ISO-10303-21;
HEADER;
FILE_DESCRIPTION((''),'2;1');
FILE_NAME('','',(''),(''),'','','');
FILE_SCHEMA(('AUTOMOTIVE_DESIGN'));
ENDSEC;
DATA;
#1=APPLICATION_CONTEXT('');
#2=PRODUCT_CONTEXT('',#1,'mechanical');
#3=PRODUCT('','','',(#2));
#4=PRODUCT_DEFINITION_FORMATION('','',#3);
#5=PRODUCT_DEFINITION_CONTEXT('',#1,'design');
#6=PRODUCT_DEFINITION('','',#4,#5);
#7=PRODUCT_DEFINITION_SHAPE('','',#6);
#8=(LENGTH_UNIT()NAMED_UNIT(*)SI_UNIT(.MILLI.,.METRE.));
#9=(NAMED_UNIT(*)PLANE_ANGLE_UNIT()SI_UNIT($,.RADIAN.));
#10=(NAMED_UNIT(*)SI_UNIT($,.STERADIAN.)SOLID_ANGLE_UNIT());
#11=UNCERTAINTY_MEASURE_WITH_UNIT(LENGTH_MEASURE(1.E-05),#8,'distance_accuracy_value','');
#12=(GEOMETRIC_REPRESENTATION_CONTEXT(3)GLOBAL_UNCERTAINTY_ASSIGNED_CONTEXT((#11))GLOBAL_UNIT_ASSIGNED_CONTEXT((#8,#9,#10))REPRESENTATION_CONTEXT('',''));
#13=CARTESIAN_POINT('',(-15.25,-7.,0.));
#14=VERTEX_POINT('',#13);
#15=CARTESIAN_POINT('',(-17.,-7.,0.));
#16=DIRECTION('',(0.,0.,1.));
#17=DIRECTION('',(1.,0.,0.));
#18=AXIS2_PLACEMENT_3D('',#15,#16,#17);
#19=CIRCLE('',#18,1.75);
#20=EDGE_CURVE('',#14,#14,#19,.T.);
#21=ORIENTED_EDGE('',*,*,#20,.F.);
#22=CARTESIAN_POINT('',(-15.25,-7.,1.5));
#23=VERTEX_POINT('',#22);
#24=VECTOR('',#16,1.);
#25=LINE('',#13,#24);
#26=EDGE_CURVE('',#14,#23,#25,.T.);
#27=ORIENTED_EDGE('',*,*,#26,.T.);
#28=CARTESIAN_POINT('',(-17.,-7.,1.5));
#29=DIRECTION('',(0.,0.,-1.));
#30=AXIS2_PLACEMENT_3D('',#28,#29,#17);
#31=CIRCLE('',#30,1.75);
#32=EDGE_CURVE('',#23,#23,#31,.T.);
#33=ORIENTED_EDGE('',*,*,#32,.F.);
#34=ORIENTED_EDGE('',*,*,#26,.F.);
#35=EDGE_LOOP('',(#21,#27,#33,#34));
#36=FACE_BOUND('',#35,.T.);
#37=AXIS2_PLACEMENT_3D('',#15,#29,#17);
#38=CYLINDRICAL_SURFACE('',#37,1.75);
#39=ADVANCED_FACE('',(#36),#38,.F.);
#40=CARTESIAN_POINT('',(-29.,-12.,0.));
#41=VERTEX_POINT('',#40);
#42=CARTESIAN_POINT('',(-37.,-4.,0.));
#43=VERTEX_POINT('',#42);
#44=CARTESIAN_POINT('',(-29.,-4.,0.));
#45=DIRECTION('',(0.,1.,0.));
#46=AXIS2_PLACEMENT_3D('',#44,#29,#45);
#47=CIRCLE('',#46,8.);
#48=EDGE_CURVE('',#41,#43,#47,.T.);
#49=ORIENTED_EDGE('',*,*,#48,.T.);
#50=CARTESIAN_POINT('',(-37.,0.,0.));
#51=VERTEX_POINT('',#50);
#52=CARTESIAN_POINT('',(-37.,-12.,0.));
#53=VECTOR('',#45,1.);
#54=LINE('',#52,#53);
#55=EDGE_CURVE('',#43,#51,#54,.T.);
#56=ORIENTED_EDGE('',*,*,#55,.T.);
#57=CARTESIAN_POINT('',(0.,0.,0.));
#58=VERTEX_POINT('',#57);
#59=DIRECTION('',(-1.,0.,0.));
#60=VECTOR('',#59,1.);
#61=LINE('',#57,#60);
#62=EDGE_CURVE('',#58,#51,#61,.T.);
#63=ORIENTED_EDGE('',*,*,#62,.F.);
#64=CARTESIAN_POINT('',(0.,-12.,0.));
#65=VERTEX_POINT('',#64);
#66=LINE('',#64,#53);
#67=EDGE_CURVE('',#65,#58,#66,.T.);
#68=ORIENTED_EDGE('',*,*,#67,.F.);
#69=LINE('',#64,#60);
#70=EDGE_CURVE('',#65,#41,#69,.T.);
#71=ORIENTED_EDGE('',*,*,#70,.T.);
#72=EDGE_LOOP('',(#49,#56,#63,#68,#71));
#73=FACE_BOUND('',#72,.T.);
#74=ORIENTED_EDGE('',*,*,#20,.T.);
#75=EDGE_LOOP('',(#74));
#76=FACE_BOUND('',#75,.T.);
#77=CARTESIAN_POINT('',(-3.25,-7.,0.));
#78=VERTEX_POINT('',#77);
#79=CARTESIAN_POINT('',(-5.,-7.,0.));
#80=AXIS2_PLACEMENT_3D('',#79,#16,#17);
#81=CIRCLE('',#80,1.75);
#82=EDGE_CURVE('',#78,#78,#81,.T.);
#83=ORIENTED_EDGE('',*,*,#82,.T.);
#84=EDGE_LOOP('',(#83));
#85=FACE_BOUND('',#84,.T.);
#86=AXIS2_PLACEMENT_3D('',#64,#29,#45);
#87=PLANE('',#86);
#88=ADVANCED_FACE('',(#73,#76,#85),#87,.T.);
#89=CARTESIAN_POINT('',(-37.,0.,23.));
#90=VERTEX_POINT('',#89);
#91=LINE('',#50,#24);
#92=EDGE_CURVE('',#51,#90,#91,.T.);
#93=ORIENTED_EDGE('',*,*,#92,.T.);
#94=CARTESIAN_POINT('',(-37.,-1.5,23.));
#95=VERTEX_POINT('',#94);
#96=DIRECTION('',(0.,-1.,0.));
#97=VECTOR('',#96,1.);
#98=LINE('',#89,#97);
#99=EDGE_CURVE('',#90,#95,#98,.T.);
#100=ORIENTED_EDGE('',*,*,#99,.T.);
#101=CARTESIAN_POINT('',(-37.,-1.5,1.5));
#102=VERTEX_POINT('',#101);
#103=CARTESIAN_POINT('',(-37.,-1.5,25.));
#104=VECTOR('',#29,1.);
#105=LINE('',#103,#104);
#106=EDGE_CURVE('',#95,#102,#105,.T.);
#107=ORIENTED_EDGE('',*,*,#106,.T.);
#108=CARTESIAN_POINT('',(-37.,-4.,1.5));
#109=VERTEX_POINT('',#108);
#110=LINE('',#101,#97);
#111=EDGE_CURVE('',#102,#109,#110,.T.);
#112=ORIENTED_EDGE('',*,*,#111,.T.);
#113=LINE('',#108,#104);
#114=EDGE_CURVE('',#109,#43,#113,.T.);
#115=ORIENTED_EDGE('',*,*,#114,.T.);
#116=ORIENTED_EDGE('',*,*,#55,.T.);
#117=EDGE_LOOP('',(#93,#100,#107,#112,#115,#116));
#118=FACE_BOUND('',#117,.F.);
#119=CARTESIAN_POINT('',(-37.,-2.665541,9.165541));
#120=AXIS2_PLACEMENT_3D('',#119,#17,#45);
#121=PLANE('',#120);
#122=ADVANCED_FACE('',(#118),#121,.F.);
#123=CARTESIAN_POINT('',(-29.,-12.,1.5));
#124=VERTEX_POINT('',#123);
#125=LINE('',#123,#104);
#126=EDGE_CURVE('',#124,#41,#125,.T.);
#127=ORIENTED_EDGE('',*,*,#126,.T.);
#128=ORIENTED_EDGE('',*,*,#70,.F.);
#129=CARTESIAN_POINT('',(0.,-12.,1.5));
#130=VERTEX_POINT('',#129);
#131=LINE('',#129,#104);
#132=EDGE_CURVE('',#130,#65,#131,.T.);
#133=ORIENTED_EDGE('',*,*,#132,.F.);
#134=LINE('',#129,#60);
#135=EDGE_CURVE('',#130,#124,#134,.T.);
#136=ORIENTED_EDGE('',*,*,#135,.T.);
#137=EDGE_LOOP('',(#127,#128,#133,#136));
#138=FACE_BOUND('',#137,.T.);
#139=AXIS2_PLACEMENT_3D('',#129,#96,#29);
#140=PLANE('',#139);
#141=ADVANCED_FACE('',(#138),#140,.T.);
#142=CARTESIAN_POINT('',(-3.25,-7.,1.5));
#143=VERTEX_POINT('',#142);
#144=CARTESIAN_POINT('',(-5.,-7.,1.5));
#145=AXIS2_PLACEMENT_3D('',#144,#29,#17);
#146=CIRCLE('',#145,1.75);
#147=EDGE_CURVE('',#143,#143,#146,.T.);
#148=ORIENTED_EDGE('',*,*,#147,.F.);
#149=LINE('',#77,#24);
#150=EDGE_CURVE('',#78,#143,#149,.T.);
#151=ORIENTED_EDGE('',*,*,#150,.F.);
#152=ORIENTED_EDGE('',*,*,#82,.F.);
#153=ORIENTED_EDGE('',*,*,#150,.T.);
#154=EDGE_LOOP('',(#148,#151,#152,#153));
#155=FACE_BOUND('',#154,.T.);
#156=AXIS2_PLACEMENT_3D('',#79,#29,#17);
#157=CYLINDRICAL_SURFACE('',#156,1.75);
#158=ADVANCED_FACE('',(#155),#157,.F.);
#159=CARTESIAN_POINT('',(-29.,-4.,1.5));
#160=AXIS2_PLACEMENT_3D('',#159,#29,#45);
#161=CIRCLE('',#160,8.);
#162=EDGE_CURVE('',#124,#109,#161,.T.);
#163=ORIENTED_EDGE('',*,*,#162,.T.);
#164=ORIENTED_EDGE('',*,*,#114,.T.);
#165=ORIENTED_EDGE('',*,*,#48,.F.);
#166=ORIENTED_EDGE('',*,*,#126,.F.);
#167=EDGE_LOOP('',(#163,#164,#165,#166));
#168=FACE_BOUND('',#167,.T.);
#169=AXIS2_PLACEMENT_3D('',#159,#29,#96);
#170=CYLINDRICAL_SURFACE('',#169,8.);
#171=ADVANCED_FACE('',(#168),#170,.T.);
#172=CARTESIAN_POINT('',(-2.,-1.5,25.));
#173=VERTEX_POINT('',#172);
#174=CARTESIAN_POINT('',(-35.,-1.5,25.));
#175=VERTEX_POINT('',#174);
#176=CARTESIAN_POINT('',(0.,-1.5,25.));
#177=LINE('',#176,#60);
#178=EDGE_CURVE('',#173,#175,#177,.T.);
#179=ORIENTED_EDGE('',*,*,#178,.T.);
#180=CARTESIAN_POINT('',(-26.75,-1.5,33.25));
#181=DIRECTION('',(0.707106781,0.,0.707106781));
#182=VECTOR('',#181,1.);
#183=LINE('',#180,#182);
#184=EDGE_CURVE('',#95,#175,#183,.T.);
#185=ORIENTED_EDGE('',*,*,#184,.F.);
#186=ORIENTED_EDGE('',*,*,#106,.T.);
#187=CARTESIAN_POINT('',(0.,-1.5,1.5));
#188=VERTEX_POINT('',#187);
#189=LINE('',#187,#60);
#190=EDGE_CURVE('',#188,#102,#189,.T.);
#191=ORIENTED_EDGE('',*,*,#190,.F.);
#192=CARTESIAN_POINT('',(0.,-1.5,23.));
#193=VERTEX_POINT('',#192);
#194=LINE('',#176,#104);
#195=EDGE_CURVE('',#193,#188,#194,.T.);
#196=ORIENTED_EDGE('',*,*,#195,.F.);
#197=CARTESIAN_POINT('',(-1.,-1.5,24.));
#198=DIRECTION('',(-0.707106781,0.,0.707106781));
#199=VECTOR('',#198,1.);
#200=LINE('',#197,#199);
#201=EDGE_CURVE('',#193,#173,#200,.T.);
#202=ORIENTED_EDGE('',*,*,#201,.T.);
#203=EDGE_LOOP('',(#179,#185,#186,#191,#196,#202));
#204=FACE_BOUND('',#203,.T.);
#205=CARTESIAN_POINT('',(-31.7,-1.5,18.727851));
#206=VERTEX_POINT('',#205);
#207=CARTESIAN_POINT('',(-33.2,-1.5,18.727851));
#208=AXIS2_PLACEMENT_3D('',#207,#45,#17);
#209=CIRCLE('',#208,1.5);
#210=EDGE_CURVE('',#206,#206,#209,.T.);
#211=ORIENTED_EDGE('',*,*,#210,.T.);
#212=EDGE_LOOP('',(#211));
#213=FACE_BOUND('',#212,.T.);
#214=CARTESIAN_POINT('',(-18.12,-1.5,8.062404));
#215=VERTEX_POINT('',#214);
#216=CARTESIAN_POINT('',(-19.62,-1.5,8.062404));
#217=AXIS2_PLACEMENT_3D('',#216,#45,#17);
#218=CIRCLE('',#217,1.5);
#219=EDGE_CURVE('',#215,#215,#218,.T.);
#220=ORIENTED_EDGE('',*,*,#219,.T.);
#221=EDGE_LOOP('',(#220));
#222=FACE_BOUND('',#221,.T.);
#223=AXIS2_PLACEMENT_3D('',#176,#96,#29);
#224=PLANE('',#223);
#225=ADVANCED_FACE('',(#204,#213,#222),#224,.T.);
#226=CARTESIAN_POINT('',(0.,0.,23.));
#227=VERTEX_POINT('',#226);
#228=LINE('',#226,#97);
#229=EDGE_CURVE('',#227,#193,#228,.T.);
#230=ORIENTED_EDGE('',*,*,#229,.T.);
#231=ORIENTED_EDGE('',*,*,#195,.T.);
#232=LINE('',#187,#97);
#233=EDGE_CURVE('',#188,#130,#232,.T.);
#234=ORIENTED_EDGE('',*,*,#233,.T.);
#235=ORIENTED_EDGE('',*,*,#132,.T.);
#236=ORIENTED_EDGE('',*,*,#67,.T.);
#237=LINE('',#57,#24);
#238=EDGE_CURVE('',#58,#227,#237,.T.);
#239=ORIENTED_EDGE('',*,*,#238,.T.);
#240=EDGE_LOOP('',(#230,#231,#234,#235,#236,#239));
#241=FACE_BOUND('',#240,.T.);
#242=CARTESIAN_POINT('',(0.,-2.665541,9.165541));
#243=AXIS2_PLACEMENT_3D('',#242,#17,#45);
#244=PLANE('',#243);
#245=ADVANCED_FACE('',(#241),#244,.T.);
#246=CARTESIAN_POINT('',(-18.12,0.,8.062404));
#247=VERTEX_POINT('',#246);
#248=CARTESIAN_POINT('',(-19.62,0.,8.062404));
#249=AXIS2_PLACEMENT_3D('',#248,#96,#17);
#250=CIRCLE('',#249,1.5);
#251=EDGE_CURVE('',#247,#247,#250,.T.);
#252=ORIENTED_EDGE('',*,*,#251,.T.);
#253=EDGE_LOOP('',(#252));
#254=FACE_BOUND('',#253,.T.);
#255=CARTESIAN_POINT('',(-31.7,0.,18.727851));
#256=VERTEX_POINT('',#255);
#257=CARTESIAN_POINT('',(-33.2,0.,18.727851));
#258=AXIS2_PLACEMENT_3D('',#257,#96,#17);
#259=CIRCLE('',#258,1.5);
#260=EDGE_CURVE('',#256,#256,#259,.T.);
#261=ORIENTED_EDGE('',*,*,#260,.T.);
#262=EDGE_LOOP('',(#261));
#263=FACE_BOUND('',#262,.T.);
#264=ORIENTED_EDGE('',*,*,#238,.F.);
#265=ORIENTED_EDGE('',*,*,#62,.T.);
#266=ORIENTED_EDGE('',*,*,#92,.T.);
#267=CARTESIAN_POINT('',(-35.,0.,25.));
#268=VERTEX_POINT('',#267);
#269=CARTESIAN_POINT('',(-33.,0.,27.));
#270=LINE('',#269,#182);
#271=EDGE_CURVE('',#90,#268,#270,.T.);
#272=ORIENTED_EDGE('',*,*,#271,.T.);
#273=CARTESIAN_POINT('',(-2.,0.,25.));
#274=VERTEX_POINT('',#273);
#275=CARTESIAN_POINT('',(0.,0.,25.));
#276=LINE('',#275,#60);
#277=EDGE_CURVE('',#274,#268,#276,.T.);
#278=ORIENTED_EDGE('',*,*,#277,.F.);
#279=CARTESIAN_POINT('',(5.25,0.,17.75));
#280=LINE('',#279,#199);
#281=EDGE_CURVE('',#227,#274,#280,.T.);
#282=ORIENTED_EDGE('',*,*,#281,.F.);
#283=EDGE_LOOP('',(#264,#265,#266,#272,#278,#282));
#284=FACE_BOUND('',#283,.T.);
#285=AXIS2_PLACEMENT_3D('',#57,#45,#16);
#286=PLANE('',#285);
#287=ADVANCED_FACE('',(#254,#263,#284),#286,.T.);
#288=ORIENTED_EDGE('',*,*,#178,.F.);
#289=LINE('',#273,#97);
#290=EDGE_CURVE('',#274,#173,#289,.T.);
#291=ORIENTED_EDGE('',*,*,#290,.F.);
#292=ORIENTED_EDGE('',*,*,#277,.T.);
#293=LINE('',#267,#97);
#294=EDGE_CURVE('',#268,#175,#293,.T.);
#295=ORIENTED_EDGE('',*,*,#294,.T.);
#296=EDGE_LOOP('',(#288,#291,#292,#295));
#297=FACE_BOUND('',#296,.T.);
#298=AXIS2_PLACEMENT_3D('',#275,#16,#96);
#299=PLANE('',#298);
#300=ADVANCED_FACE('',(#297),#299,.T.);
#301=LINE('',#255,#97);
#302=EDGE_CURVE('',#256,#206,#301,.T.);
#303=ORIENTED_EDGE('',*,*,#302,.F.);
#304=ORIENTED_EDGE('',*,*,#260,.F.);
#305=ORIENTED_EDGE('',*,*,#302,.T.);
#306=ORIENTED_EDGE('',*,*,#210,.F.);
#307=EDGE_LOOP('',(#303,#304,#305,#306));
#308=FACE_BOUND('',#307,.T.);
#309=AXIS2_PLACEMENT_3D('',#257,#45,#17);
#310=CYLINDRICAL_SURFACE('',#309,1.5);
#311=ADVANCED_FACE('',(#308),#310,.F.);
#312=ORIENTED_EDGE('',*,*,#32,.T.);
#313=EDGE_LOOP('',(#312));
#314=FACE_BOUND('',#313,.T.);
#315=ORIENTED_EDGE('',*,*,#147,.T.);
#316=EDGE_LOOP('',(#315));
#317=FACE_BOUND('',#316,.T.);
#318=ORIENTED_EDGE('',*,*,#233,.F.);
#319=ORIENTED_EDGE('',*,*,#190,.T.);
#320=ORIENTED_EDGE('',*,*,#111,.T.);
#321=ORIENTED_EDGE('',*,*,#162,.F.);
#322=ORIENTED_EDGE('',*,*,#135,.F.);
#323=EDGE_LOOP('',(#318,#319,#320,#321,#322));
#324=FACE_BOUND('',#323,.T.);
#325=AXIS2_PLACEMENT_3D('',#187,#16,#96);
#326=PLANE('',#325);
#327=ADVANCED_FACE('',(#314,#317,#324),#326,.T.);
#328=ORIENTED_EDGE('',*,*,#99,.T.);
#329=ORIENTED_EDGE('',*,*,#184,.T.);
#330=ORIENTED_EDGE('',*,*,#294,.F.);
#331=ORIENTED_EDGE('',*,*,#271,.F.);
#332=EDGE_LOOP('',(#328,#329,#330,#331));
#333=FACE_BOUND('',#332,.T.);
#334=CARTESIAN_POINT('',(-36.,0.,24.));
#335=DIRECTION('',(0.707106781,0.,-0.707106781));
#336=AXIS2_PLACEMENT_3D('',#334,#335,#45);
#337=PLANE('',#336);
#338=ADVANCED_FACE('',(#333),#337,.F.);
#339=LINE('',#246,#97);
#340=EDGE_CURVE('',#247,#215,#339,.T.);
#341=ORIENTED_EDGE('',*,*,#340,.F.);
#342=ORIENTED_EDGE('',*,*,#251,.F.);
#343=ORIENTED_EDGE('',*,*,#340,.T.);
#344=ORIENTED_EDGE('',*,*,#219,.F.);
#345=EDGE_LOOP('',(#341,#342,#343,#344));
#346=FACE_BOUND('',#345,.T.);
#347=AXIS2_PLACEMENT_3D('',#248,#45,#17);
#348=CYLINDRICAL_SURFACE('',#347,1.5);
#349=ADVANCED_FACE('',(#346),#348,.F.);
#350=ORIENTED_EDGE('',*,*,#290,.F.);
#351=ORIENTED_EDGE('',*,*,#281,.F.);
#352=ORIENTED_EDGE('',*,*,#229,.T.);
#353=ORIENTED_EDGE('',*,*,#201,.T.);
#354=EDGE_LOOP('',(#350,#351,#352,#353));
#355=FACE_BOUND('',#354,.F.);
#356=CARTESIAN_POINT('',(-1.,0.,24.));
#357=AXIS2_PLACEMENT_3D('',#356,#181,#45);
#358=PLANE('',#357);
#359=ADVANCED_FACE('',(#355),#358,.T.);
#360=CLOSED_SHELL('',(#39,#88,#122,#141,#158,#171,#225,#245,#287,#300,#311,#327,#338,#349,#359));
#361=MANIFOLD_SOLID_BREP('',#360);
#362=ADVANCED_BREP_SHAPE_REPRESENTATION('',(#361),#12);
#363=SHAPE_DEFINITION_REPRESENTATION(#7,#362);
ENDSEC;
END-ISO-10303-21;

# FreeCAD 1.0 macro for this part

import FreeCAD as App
import Part
import Sketcher
Q = App.Units.Quantity


def edges_at(feature, points):
    """Names of the edges that pass closest to the given points."""
    edges = feature.Shape.Edges
    near = lambda p: min(range(len(edges)), key=lambda i: edges[i].distToShape(Part.Vertex(*p))[0])
    return sorted({f"Edge{near(p) + 1}" for p in points})


def add_polygon(sketch, points):
    """Adds a closed chain of lines whose ends are joined by coincident constraints."""
    first, n = sketch.GeometryCount, len(points)
    for a, b in zip(points, points[1:] + points[:1]):
        sketch.addGeometry(Part.LineSegment(App.Vector(*a, 0), App.Vector(*b, 0)), False)
    for i in range(n):
        sketch.addConstraint(Sketcher.Constraint("Coincident", first + i, 2, first + (i + 1) % n, 1))

doc = App.newDocument("Part")
body = doc.addObject("PartDesign::Body", "Body")

# Sketch on YZ plane
sketch1 = body.newObject("Sketcher::SketchObject", "Sketch")
sketch1.AttachmentSupport = (doc.getObject("YZ_Plane"), [""])
sketch1.MapMode = "FlatFace"
add_polygon(sketch1, [(-12, 0), (0, 0), (0, 25), (-1.5, 25), (-1.5, 1.5), (-12, 1.5)])  # lines 0-5
sketch1.addConstraint([
    Sketcher.Constraint("Horizontal", 0),
    Sketcher.Constraint("Vertical", 1),
    Sketcher.Constraint("Horizontal", 2),
    Sketcher.Constraint("Vertical", 3),
    Sketcher.Constraint("Horizontal", 4),
    Sketcher.Constraint("Vertical", 5),
    Sketcher.Constraint("Coincident", 0, 2, -1, 1),
    Sketcher.Constraint("Equal", 2, 5),
    Sketcher.Constraint("DistanceX", 0, 1, 0, 2, Q("12 mm")),
    Sketcher.Constraint("DistanceY", 1, 1, 1, 2, Q("25 mm")),
    Sketcher.Constraint("DistanceX", 2, 2, 2, 1, Q("1.5 mm")),
])
pad1 = body.newObject("PartDesign::Pad", "Pad")
pad1.Profile = sketch1
pad1.Length = 37
pad1.Reversed = True

# Sketch on XZ plane
sketch2 = body.newObject("Sketcher::SketchObject", "Sketch001")
sketch2.AttachmentSupport = (doc.getObject("XZ_Plane"), [""])
sketch2.MapMode = "FlatFace"
sketch2.addGeometry([
    Part.Circle(App.Vector(-33.2, 18.7, 0), App.Vector(0, 0, 1), 1.5),
    Part.Circle(App.Vector(-19.6, 8.1, 0), App.Vector(0, 0, 1), 1.5),
], False)
sketch2.addConstraint([
    Sketcher.Constraint("Equal", 0, 1),
    Sketcher.Constraint("Diameter", 0, Q("3 mm")),
    Sketcher.Constraint("DistanceX", 0, 3, -1, 1, Q("33.2 mm")),
    Sketcher.Constraint("DistanceX", 1, 3, -1, 1, Q("19.62 mm")),
    Sketcher.Constraint("DistanceY", -1, 1, 0, 3, Q("18.727851 mm")),
    Sketcher.Constraint("DistanceY", -1, 1, 1, 3, Q("8.062404 mm")),
])
pocket1 = body.newObject("PartDesign::Pocket", "Pocket")
pocket1.Profile = sketch2
pocket1.Type = "ThroughAll"
pocket1.Reversed = True

# Sketch on XY plane
sketch3 = body.newObject("Sketcher::SketchObject", "Sketch002")
sketch3.AttachmentSupport = (doc.getObject("XY_Plane"), [""])
sketch3.MapMode = "FlatFace"
sketch3.addGeometry([
    Part.Circle(App.Vector(-5, -7, 0), App.Vector(0, 0, 1), 1.8),
    Part.Circle(App.Vector(-17, -7, 0), App.Vector(0, 0, 1), 1.8),
], False)
sketch3.addConstraint([
    Sketcher.Constraint("Equal", 0, 1),
    Sketcher.Constraint("Horizontal", 0, 3, 1, 3),
    Sketcher.Constraint("Diameter", 0, Q("3.5 mm")),
    Sketcher.Constraint("DistanceX", 0, 3, -1, 1, Q("5 mm")),
    Sketcher.Constraint("DistanceY", 0, 3, -1, 1, Q("7 mm")),
    Sketcher.Constraint("DistanceX", 1, 3, -1, 1, Q("17 mm")),
])
pocket2 = body.newObject("PartDesign::Pocket", "Pocket001")
pocket2.Profile = sketch3
pocket2.Type = "ThroughAll"
pocket2.Reversed = True
doc.recompute()

fillet = body.newObject("PartDesign::Fillet", "Fillet")
fillet.Base = (pocket2, edges_at(pocket2, [(-37, -12, 0.75)]))
fillet.Radius = 8
doc.recompute()

chamfer = body.newObject("PartDesign::Chamfer", "Chamfer")
chamfer.Base = (fillet, edges_at(fillet, [(-37, -0.75, 25), (0, -0.75, 25)]))
chamfer.Size = 2

doc.recompute()
